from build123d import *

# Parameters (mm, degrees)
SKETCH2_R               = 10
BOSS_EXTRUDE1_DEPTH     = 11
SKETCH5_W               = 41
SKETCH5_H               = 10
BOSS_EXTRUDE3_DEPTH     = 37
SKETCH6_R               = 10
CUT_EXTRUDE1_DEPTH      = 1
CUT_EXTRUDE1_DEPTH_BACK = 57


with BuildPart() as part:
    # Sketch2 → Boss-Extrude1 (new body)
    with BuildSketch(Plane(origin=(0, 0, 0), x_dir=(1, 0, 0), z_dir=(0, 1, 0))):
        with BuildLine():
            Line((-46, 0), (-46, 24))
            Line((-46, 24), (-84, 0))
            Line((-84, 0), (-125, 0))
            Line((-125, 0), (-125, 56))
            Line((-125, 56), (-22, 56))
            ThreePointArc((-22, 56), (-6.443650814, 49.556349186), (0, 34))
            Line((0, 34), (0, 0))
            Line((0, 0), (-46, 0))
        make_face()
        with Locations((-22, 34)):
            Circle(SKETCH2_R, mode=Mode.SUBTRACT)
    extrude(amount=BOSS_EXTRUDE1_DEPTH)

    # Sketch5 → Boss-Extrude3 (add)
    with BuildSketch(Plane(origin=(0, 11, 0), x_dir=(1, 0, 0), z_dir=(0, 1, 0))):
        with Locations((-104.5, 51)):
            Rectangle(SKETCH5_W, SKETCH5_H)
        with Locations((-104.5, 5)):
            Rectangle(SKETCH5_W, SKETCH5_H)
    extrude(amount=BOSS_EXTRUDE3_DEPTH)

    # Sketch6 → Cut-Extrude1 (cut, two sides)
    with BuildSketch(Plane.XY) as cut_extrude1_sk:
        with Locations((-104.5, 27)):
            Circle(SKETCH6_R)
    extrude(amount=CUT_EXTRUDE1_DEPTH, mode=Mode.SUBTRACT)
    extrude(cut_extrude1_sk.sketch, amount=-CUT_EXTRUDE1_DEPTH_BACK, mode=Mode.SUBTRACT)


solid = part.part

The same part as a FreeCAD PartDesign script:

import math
import FreeCAD as App
import Part
import Sketcher
from FreeCAD import Vector
Q = App.Units.Quantity


def add_polygon(sketch, points):
    """Adds a closed chain of lines whose ends are joined by coincident constraints."""
    first, n = sketch.GeometryCount, len(points)
    for a, b in zip(points, points[1:] + points[:1]):
        sketch.addGeometry(Part.LineSegment(App.Vector(*a, 0), App.Vector(*b, 0)), False)
    for i in range(n):
        sketch.addConstraint(Sketcher.Constraint("Coincident", first + i, 2, first + (i + 1) % n, 1))

doc = App.newDocument("Part")
body = doc.addObject("PartDesign::Body", "Body")

# Sketch on XZ plane
sketch1 = body.newObject("Sketcher::SketchObject", "Sketch")
sketch1.AttachmentSupport = (doc.getObject("XZ_Plane"), [""])
sketch1.MapMode = "FlatFace"
sketch1.addGeometry(Part.LineSegment(Vector(-46, -24, 0), Vector(-46, 0, 0)), False)
sketch1.addGeometry(Part.LineSegment(Vector(-46, 0, 0), Vector(0, 0, 0)), False)
sketch1.addGeometry(Part.LineSegment(Vector(0, 0, 0), Vector(0, -34, 0)), False)
sketch1.addGeometry(Part.ArcOfCircle(Part.Circle(Vector(-22, -34, 0), Vector(0, 0, 1), 22), math.radians(-90), math.radians(0)), False)
sketch1.addGeometry(Part.LineSegment(Vector(-22, -56, 0), Vector(-125, -56, 0)), False)
sketch1.addGeometry(Part.LineSegment(Vector(-125, -56, 0), Vector(-125, 0, 0)), False)
sketch1.addGeometry(Part.LineSegment(Vector(-125, 0, 0), Vector(-84, 0, 0)), False)
sketch1.addGeometry(Part.LineSegment(Vector(-84, 0, 0), Vector(-46, -24, 0)), False)
sketch1.addGeometry(Part.Circle(Vector(-22, -34, 0), Vector(0, 0, 1), 10), False)
sketch1.addConstraint(Sketcher.Constraint("Coincident", 0, 2, 1, 1))
sketch1.addConstraint(Sketcher.Constraint("Coincident", 1, 2, 2, 1))
sketch1.addConstraint(Sketcher.Constraint("Tangent", 2, 2, 3, 2))
sketch1.addConstraint(Sketcher.Constraint("Tangent", 3, 1, 4, 1))
sketch1.addConstraint(Sketcher.Constraint("Coincident", 4, 2, 5, 1))
sketch1.addConstraint(Sketcher.Constraint("Coincident", 5, 2, 6, 1))
sketch1.addConstraint(Sketcher.Constraint("Coincident", 6, 2, 7, 1))
sketch1.addConstraint(Sketcher.Constraint("Coincident", 7, 2, 0, 1))
sketch1.addConstraint(Sketcher.Constraint("Vertical", 0))
sketch1.addConstraint(Sketcher.Constraint("Horizontal", 1))
sketch1.addConstraint(Sketcher.Constraint("Vertical", 2))
sketch1.addConstraint(Sketcher.Constraint("Horizontal", 4))
sketch1.addConstraint(Sketcher.Constraint("Vertical", 5))
sketch1.addConstraint(Sketcher.Constraint("Horizontal", 6))
sketch1.addConstraint(Sketcher.Constraint("Coincident", 1, 2, -1, 1))
sketch1.addConstraint(Sketcher.Constraint("Coincident", 8, 3, 3, 3))
sketch1.addConstraint(Sketcher.Constraint("PointOnObject", 5, 2, -1))
sketch1.addConstraint(Sketcher.Constraint("Diameter", 8, Q("20 mm")))
sketch1.addConstraint(Sketcher.Constraint("Radius", 3, Q("22 mm")))
sketch1.addConstraint(Sketcher.Constraint("DistanceX", 1, 1, 1, 2, Q("46 mm")))
sketch1.addConstraint(Sketcher.Constraint("DistanceX", 4, 2, 4, 1, Q("103 mm")))
sketch1.addConstraint(Sketcher.Constraint("DistanceX", 6, 1, 6, 2, Q("41 mm")))
sketch1.addConstraint(Sketcher.Constraint("DistanceY", 0, 1, 0, 2, Q("24 mm")))
sketch1.addConstraint(Sketcher.Constraint("DistanceY", 2, 2, 2, 1, Q("34 mm")))
pad1 = body.newObject("PartDesign::Pad", "Pad")
pad1.Profile = sketch1
pad1.Length = 11
pad1.Reversed = True

# Sketch on XZ plane
sketch2 = body.newObject("Sketcher::SketchObject", "Sketch001")
sketch2.AttachmentSupport = (doc.getObject("XZ_Plane"), [""])
sketch2.MapMode = "FlatFace"
sketch2.AttachmentOffset = App.Placement(Vector(0, 0, -11), App.Rotation())
add_polygon(sketch2, [(-125, -56), (-125, -46), (-84, -46), (-84, -56)])  # lines 0-3
add_polygon(sketch2, [(-125, -10), (-125, 0), (-84, 0), (-84, -10)])  # lines 4-7
sketch2.addConstraint(Sketcher.Constraint("Vertical", 0))
sketch2.addConstraint(Sketcher.Constraint("Horizontal", 1))
sketch2.addConstraint(Sketcher.Constraint("Vertical", 2))
sketch2.addConstraint(Sketcher.Constraint("Horizontal", 3))
sketch2.addConstraint(Sketcher.Constraint("Vertical", 4))
sketch2.addConstraint(Sketcher.Constraint("Horizontal", 5))
sketch2.addConstraint(Sketcher.Constraint("Vertical", 6))
sketch2.addConstraint(Sketcher.Constraint("Horizontal", 7))
sketch2.addConstraint(Sketcher.Constraint("PointOnObject", 4, 2, -1))
sketch2.addConstraint(Sketcher.Constraint("Vertical", 3, 2, 4, 2))
sketch2.addConstraint(Sketcher.Constraint("Vertical", 2, 2, 5, 2))
sketch2.addConstraint(Sketcher.Constraint("Equal", 2, 4))
sketch2.addConstraint(Sketcher.Constraint("DistanceX", 1, 1, 1, 2, Q("41 mm")))
sketch2.addConstraint(Sketcher.Constraint("DistanceY", 0, 1, 0, 2, Q("10 mm")))
sketch2.addConstraint(Sketcher.Constraint("DistanceX", 0, 2, -1, 1, Q("125 mm")))
sketch2.addConstraint(Sketcher.Constraint("DistanceY", 0, 2, -1, 1, Q("46 mm")))
pad2 = body.newObject("PartDesign::Pad", "Pad001")
pad2.Profile = sketch2
pad2.Length = 37
pad2.Reversed = True

# Sketch on XY plane
sketch3 = body.newObject("Sketcher::SketchObject", "Sketch002")
sketch3.AttachmentSupport = (doc.getObject("XY_Plane"), [""])
sketch3.MapMode = "FlatFace"
sketch3.addGeometry(Part.Circle(Vector(-104, 27, 0), Vector(0, 0, 1), 10), False)
sketch3.addConstraint(Sketcher.Constraint("Diameter", 0, Q("20 mm")))
sketch3.addConstraint(Sketcher.Constraint("DistanceY", -1, 1, 0, 3, Q("27 mm")))
sketch3.addConstraint(Sketcher.Constraint("DistanceX", 0, 3, -1, 1, Q("104.5 mm")))
pocket1 = body.newObject("PartDesign::Pocket", "Pocket")
pocket1.Profile = sketch3
pocket1.Type = "ThroughAll"
pocket1.Midplane = True

doc.recompute()
